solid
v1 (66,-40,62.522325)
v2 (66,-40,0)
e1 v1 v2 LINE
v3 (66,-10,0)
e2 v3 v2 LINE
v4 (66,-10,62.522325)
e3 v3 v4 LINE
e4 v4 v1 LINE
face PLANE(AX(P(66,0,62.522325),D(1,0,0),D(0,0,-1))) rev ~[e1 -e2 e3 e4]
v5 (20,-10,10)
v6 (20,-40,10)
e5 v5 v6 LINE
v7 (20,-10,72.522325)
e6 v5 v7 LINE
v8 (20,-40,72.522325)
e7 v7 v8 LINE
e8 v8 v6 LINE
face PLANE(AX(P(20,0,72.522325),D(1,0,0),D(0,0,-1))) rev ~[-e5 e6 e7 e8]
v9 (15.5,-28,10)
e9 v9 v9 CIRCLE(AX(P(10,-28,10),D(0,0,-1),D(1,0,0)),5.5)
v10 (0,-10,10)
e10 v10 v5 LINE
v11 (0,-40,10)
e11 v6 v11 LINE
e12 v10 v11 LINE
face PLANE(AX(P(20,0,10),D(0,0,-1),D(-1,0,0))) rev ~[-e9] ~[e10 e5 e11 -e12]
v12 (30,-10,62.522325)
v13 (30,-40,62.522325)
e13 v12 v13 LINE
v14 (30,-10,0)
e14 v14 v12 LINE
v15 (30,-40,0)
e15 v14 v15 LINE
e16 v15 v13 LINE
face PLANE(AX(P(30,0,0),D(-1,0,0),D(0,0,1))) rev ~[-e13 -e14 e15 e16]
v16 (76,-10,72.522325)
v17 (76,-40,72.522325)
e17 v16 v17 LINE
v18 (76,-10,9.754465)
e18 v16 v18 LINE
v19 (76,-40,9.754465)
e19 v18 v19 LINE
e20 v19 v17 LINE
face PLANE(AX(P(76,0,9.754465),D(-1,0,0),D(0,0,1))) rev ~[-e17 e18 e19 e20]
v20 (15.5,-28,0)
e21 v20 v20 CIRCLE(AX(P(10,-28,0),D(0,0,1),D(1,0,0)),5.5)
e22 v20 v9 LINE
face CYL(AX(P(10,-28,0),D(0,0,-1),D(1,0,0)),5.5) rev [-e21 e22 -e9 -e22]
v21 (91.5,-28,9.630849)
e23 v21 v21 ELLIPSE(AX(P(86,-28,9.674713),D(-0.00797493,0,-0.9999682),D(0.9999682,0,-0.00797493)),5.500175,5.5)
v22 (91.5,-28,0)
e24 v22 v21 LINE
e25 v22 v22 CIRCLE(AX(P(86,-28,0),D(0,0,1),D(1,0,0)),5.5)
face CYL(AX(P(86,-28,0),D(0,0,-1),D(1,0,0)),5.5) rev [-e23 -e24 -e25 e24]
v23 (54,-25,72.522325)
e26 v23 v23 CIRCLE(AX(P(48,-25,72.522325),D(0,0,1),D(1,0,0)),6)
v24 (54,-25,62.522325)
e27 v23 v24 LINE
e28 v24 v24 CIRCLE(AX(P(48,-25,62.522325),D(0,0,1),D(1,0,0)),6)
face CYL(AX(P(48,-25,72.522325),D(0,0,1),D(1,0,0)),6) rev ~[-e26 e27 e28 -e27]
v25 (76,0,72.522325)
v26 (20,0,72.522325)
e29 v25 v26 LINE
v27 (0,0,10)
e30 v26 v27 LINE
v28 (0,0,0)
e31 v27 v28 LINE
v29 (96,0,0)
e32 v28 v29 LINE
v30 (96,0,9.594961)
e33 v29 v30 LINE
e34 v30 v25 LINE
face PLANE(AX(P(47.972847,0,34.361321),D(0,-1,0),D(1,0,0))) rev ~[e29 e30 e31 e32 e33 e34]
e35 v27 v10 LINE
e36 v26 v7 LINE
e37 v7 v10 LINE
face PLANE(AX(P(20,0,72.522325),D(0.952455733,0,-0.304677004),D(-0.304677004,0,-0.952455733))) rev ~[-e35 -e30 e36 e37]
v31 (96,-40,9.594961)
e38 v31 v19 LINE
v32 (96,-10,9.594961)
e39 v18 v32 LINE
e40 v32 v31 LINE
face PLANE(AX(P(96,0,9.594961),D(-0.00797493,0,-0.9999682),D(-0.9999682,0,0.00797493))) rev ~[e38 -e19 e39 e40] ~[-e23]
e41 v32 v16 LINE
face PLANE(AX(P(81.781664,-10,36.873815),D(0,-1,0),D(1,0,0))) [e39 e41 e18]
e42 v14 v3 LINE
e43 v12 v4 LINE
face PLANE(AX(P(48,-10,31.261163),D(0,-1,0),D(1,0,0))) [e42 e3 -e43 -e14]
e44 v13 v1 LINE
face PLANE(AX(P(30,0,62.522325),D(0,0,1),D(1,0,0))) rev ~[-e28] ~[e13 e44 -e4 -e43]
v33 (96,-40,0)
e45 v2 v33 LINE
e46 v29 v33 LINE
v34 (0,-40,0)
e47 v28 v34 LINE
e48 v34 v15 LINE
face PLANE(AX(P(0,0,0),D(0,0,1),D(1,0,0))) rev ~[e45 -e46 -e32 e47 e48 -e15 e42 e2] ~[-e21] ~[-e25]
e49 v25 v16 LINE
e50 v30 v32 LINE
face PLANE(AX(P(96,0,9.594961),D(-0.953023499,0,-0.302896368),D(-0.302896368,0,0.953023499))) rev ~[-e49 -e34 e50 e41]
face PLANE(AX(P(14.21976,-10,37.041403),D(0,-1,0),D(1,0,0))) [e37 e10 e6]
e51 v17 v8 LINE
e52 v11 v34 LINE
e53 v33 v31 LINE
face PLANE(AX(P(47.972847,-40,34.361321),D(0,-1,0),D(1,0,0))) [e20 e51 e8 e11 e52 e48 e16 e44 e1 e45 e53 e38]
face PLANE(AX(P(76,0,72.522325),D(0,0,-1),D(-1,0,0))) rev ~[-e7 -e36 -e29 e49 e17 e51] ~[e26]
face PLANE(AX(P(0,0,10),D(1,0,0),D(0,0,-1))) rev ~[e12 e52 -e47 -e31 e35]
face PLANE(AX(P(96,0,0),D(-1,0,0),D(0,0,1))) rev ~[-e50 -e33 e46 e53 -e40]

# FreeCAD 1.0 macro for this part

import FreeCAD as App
import Part
import Sketcher
from FreeCAD import Vector
Q = App.Units.Quantity

doc = App.newDocument("Part")
body = doc.addObject("PartDesign::Body", "Body")

# Sketch on XZ plane
sketch1 = body.newObject("Sketcher::SketchObject", "Sketch")
sketch1.AttachmentSupport = (doc.getObject("XZ_Plane"), [""])
sketch1.MapMode = "FlatFace"
sketch1.addGeometry(Part.LineSegment(Vector(20, 73, 0), Vector(0, 10, 0)), False)
sketch1.addGeometry(Part.LineSegment(Vector(0, 10, 0), Vector(20, 10, 0)), False)
sketch1.addGeometry(Part.LineSegment(Vector(20, 10, 0), Vector(20, 73, 0)), False)
sketch1.addConstraint(Sketcher.Constraint("Coincident", 0, 2, 1, 1))
sketch1.addConstraint(Sketcher.Constraint("Coincident", 1, 2, 2, 1))
sketch1.addConstraint(Sketcher.Constraint("Coincident", 2, 2, 0, 1))
sketch1.addConstraint(Sketcher.Constraint("Horizontal", 1))
sketch1.addConstraint(Sketcher.Constraint("Vertical", 2))
sketch1.addConstraint(Sketcher.Constraint("PointOnObject", 0, 2, -2))
sketch1.addConstraint(Sketcher.Constraint("DistanceX", 1, 1, 1, 2, Q("20 mm")))
sketch1.addConstraint(Sketcher.Constraint("DistanceY", -1, 1, 0, 2, Q("10 mm")))
sketch1.addConstraint(Sketcher.Constraint("DistanceY", 2, 1, 2, 2, Q("62.522325 mm")))
pad1 = body.newObject("PartDesign::Pad", "Pad")
pad1.Profile = sketch1
pad1.Length = 10
body2 = doc.addObject("PartDesign::Body", "Body001")

# Sketch on XZ plane
sketch2 = body2.newObject("Sketcher::SketchObject", "Sketch001")
sketch2.AttachmentSupport = (doc.getObject("XZ_Plane001"), [""])
sketch2.MapMode = "FlatFace"
sketch2.addGeometry(Part.LineSegment(Vector(30, 63, 0), Vector(30, 0, 0)), False)
sketch2.addGeometry(Part.LineSegment(Vector(30, 0, 0), Vector(66, 0, 0)), False)
sketch2.addGeometry(Part.LineSegment(Vector(66, 0, 0), Vector(66, 63, 0)), False)
sketch2.addGeometry(Part.LineSegment(Vector(66, 63, 0), Vector(30, 63, 0)), False)
sketch2.addConstraint(Sketcher.Constraint("Coincident", 0, 2, 1, 1))
sketch2.addConstraint(Sketcher.Constraint("Coincident", 1, 2, 2, 1))
sketch2.addConstraint(Sketcher.Constraint("Coincident", 2, 2, 3, 1))
sketch2.addConstraint(Sketcher.Constraint("Coincident", 3, 2, 0, 1))
sketch2.addConstraint(Sketcher.Constraint("Vertical", 0))
sketch2.addConstraint(Sketcher.Constraint("Horizontal", 1))
sketch2.addConstraint(Sketcher.Constraint("Vertical", 2))
sketch2.addConstraint(Sketcher.Constraint("Horizontal", 3))
sketch2.addConstraint(Sketcher.Constraint("PointOnObject", 0, 2, -1))
sketch2.addConstraint(Sketcher.Constraint("DistanceX", 1, 1, 1, 2, Q("36 mm")))
sketch2.addConstraint(Sketcher.Constraint("DistanceX", -1, 1, 0, 2, Q("30 mm")))
sketch2.addConstraint(Sketcher.Constraint("DistanceY", 0, 2, 0, 1, Q("62.522325 mm")))
pad2 = body2.newObject("PartDesign::Pad", "Pad001")
pad2.Profile = sketch2
pad2.Length = 10
body3 = doc.addObject("PartDesign::Body", "Body002")

# Sketch on XZ plane
sketch3 = body3.newObject("Sketcher::SketchObject", "Sketch002")
sketch3.AttachmentSupport = (doc.getObject("XZ_Plane002"), [""])
sketch3.MapMode = "FlatFace"
sketch3.addGeometry(Part.LineSegment(Vector(96, 10, 0), Vector(76, 73, 0)), False)
sketch3.addGeometry(Part.LineSegment(Vector(76, 73, 0), Vector(76, 10, 0)), False)
sketch3.addGeometry(Part.LineSegment(Vector(76, 10, 0), Vector(96, 10, 0)), False)
sketch3.addConstraint(Sketcher.Constraint("Coincident", 0, 2, 1, 1))
sketch3.addConstraint(Sketcher.Constraint("Coincident", 1, 2, 2, 1))
sketch3.addConstraint(Sketcher.Constraint("Coincident", 2, 2, 0, 1))
sketch3.addConstraint(Sketcher.Constraint("Vertical", 1))
sketch3.addConstraint(Sketcher.Constraint("DistanceX", -1, 1, 0, 2, Q("76 mm")))
sketch3.addConstraint(Sketcher.Constraint("DistanceX", -1, 1, 2, 2, Q("96 mm")))
sketch3.addConstraint(Sketcher.Constraint("DistanceY", 1, 2, 1, 1, Q("62.76786 mm")))
sketch3.addConstraint(Sketcher.Constraint("DistanceY", -1, 1, 2, 2, Q("9.594961 mm")))
sketch3.addConstraint(Sketcher.Constraint("Distance", 0, Q("66.029184 mm")))
pad3 = body3.newObject("PartDesign::Pad", "Pad002")
pad3.Profile = sketch3
pad3.Length = 10
body.AllowCompound = True
doc.recompute()

boolean = body.newObject("PartDesign::Boolean", "Boolean")
boolean.Type = "Fuse"
boolean.addObjects([body2])
doc.recompute()

boolean2 = body.newObject("PartDesign::Boolean", "Boolean001")
boolean2.Type = "Fuse"
boolean2.addObjects([body3])

# Sketch on XZ plane
sketch4 = body.newObject("Sketcher::SketchObject", "Sketch003")
sketch4.AttachmentSupport = (doc.getObject("XZ_Plane"), [""])
sketch4.MapMode = "FlatFace"
sketch4.addGeometry(Part.LineSegment(Vector(0, 10, 0), Vector(0, 0, 0)), False)
sketch4.addGeometry(Part.LineSegment(Vector(0, 0, 0), Vector(30, 0, 0)), False)
sketch4.addGeometry(Part.LineSegment(Vector(30, 0, 0), Vector(30, 63, 0)), False)
sketch4.addGeometry(Part.LineSegment(Vector(30, 63, 0), Vector(66, 63, 0)), False)
sketch4.addGeometry(Part.LineSegment(Vector(66, 63, 0), Vector(66, 0, 0)), False)
sketch4.addGeometry(Part.LineSegment(Vector(66, 0, 0), Vector(96, 0, 0)), False)
sketch4.addGeometry(Part.LineSegment(Vector(96, 0, 0), Vector(96, 10, 0)), False)
sketch4.addGeometry(Part.LineSegment(Vector(96, 10, 0), Vector(76, 10, 0)), False)
sketch4.addGeometry(Part.LineSegment(Vector(76, 10, 0), Vector(76, 73, 0)), False)
sketch4.addGeometry(Part.LineSegment(Vector(76, 73, 0), Vector(20, 73, 0)), False)
sketch4.addGeometry(Part.LineSegment(Vector(20, 73, 0), Vector(20, 10, 0)), False)
sketch4.addGeometry(Part.LineSegment(Vector(20, 10, 0), Vector(0, 10, 0)), False)
sketch4.addConstraint(Sketcher.Constraint("Coincident", 0, 2, 1, 1))
sketch4.addConstraint(Sketcher.Constraint("Coincident", 1, 2, 2, 1))
sketch4.addConstraint(Sketcher.Constraint("Coincident", 2, 2, 3, 1))
sketch4.addConstraint(Sketcher.Constraint("Coincident", 3, 2, 4, 1))
sketch4.addConstraint(Sketcher.Constraint("Coincident", 4, 2, 5, 1))
sketch4.addConstraint(Sketcher.Constraint("Coincident", 5, 2, 6, 1))
sketch4.addConstraint(Sketcher.Constraint("Coincident", 6, 2, 7, 1))
sketch4.addConstraint(Sketcher.Constraint("Coincident", 7, 2, 8, 1))
sketch4.addConstraint(Sketcher.Constraint("Coincident", 8, 2, 9, 1))
sketch4.addConstraint(Sketcher.Constraint("Coincident", 9, 2, 10, 1))
sketch4.addConstraint(Sketcher.Constraint("Coincident", 10, 2, 11, 1))
sketch4.addConstraint(Sketcher.Constraint("Coincident", 11, 2, 0, 1))
sketch4.addConstraint(Sketcher.Constraint("Vertical", 0))
sketch4.addConstraint(Sketcher.Constraint("Horizontal", 1))
sketch4.addConstraint(Sketcher.Constraint("Vertical", 2))
sketch4.addConstraint(Sketcher.Constraint("Horizontal", 3))
sketch4.addConstraint(Sketcher.Constraint("Vertical", 4))
sketch4.addConstraint(Sketcher.Constraint("Horizontal", 5))
sketch4.addConstraint(Sketcher.Constraint("Vertical", 6))
sketch4.addConstraint(Sketcher.Constraint("Vertical", 8))
sketch4.addConstraint(Sketcher.Constraint("Horizontal", 9))
sketch4.addConstraint(Sketcher.Constraint("Vertical", 10))
sketch4.addConstraint(Sketcher.Constraint("Horizontal", 11))
sketch4.addConstraint(Sketcher.Constraint("Coincident", 0, 2, -1, 1))
sketch4.addConstraint(Sketcher.Constraint("PointOnObject", 4, 2, -1))
sketch4.addConstraint(Sketcher.Constraint("Equal", 1, 5))
sketch4.addConstraint(Sketcher.Constraint("Equal", 4, 10))
sketch4.addConstraint(Sketcher.Constraint("DistanceX", 1, 1, 1, 2, Q("30 mm")))
sketch4.addConstraint(Sketcher.Constraint("DistanceX", 3, 1, 3, 2, Q("36 mm")))
sketch4.addConstraint(Sketcher.Constraint("DistanceX", 9, 2, 9, 1, Q("56 mm")))
sketch4.addConstraint(Sketcher.Constraint("DistanceX", 11, 2, 11, 1, Q("20 mm")))
sketch4.addConstraint(Sketcher.Constraint("DistanceY", 0, 2, 0, 1, Q("10 mm")))
sketch4.addConstraint(Sketcher.Constraint("DistanceY", 6, 1, 6, 2, Q("9.594961 mm")))
sketch4.addConstraint(Sketcher.Constraint("DistanceY", 8, 1, 8, 2, Q("62.76786 mm")))
sketch4.addConstraint(Sketcher.Constraint("DistanceY", 2, 1, 2, 2, Q("62.522325 mm")))
pad4 = body.newObject("PartDesign::Pad", "Pad003")
pad4.Profile = sketch4
pad4.Length = 40

# Sketch on XY plane
sketch5 = body.newObject("Sketcher::SketchObject", "Sketch004")
sketch5.AttachmentSupport = (doc.getObject("XY_Plane"), [""])
sketch5.MapMode = "FlatFace"
sketch5.addGeometry(Part.Circle(Vector(10, -28, 0), Vector(0, 0, 1), 6), False)
sketch5.addGeometry(Part.Circle(Vector(86, -28, 0), Vector(0, 0, 1), 6), False)
sketch5.addConstraint(Sketcher.Constraint("Equal", 0, 1))
sketch5.addConstraint(Sketcher.Constraint("Horizontal", 0, 3, 1, 3))
sketch5.addConstraint(Sketcher.Constraint("Diameter", 0, Q("11 mm")))
sketch5.addConstraint(Sketcher.Constraint("DistanceX", -1, 1, 0, 3, Q("10 mm")))
sketch5.addConstraint(Sketcher.Constraint("DistanceY", 0, 3, -1, 1, Q("28 mm")))
sketch5.addConstraint(Sketcher.Constraint("DistanceX", -1, 1, 1, 3, Q("86 mm")))
pocket1 = body.newObject("PartDesign::Pocket", "Pocket")
pocket1.Profile = sketch5
pocket1.Length = 25
pocket1.Reversed = True

# Sketch on XY plane
sketch6 = body.newObject("Sketcher::SketchObject", "Sketch005")
sketch6.AttachmentSupport = (doc.getObject("XY_Plane"), [""])
sketch6.MapMode = "FlatFace"
sketch6.AttachmentOffset = App.Placement(Vector(0, 0, 72.522325), App.Rotation())
sketch6.addGeometry(Part.Circle(Vector(48, -25, 0), Vector(0, 0, 1), 6), False)
sketch6.addConstraint(Sketcher.Constraint("Diameter", 0, Q("12 mm")))
sketch6.addConstraint(Sketcher.Constraint("DistanceX", -1, 1, 0, 3, Q("48 mm")))
sketch6.addConstraint(Sketcher.Constraint("DistanceY", 0, 3, -1, 1, Q("25 mm")))
pocket2 = body.newObject("PartDesign::Pocket", "Pocket001")
pocket2.Profile = sketch6
pocket2.Length = 25

doc.recompute()
